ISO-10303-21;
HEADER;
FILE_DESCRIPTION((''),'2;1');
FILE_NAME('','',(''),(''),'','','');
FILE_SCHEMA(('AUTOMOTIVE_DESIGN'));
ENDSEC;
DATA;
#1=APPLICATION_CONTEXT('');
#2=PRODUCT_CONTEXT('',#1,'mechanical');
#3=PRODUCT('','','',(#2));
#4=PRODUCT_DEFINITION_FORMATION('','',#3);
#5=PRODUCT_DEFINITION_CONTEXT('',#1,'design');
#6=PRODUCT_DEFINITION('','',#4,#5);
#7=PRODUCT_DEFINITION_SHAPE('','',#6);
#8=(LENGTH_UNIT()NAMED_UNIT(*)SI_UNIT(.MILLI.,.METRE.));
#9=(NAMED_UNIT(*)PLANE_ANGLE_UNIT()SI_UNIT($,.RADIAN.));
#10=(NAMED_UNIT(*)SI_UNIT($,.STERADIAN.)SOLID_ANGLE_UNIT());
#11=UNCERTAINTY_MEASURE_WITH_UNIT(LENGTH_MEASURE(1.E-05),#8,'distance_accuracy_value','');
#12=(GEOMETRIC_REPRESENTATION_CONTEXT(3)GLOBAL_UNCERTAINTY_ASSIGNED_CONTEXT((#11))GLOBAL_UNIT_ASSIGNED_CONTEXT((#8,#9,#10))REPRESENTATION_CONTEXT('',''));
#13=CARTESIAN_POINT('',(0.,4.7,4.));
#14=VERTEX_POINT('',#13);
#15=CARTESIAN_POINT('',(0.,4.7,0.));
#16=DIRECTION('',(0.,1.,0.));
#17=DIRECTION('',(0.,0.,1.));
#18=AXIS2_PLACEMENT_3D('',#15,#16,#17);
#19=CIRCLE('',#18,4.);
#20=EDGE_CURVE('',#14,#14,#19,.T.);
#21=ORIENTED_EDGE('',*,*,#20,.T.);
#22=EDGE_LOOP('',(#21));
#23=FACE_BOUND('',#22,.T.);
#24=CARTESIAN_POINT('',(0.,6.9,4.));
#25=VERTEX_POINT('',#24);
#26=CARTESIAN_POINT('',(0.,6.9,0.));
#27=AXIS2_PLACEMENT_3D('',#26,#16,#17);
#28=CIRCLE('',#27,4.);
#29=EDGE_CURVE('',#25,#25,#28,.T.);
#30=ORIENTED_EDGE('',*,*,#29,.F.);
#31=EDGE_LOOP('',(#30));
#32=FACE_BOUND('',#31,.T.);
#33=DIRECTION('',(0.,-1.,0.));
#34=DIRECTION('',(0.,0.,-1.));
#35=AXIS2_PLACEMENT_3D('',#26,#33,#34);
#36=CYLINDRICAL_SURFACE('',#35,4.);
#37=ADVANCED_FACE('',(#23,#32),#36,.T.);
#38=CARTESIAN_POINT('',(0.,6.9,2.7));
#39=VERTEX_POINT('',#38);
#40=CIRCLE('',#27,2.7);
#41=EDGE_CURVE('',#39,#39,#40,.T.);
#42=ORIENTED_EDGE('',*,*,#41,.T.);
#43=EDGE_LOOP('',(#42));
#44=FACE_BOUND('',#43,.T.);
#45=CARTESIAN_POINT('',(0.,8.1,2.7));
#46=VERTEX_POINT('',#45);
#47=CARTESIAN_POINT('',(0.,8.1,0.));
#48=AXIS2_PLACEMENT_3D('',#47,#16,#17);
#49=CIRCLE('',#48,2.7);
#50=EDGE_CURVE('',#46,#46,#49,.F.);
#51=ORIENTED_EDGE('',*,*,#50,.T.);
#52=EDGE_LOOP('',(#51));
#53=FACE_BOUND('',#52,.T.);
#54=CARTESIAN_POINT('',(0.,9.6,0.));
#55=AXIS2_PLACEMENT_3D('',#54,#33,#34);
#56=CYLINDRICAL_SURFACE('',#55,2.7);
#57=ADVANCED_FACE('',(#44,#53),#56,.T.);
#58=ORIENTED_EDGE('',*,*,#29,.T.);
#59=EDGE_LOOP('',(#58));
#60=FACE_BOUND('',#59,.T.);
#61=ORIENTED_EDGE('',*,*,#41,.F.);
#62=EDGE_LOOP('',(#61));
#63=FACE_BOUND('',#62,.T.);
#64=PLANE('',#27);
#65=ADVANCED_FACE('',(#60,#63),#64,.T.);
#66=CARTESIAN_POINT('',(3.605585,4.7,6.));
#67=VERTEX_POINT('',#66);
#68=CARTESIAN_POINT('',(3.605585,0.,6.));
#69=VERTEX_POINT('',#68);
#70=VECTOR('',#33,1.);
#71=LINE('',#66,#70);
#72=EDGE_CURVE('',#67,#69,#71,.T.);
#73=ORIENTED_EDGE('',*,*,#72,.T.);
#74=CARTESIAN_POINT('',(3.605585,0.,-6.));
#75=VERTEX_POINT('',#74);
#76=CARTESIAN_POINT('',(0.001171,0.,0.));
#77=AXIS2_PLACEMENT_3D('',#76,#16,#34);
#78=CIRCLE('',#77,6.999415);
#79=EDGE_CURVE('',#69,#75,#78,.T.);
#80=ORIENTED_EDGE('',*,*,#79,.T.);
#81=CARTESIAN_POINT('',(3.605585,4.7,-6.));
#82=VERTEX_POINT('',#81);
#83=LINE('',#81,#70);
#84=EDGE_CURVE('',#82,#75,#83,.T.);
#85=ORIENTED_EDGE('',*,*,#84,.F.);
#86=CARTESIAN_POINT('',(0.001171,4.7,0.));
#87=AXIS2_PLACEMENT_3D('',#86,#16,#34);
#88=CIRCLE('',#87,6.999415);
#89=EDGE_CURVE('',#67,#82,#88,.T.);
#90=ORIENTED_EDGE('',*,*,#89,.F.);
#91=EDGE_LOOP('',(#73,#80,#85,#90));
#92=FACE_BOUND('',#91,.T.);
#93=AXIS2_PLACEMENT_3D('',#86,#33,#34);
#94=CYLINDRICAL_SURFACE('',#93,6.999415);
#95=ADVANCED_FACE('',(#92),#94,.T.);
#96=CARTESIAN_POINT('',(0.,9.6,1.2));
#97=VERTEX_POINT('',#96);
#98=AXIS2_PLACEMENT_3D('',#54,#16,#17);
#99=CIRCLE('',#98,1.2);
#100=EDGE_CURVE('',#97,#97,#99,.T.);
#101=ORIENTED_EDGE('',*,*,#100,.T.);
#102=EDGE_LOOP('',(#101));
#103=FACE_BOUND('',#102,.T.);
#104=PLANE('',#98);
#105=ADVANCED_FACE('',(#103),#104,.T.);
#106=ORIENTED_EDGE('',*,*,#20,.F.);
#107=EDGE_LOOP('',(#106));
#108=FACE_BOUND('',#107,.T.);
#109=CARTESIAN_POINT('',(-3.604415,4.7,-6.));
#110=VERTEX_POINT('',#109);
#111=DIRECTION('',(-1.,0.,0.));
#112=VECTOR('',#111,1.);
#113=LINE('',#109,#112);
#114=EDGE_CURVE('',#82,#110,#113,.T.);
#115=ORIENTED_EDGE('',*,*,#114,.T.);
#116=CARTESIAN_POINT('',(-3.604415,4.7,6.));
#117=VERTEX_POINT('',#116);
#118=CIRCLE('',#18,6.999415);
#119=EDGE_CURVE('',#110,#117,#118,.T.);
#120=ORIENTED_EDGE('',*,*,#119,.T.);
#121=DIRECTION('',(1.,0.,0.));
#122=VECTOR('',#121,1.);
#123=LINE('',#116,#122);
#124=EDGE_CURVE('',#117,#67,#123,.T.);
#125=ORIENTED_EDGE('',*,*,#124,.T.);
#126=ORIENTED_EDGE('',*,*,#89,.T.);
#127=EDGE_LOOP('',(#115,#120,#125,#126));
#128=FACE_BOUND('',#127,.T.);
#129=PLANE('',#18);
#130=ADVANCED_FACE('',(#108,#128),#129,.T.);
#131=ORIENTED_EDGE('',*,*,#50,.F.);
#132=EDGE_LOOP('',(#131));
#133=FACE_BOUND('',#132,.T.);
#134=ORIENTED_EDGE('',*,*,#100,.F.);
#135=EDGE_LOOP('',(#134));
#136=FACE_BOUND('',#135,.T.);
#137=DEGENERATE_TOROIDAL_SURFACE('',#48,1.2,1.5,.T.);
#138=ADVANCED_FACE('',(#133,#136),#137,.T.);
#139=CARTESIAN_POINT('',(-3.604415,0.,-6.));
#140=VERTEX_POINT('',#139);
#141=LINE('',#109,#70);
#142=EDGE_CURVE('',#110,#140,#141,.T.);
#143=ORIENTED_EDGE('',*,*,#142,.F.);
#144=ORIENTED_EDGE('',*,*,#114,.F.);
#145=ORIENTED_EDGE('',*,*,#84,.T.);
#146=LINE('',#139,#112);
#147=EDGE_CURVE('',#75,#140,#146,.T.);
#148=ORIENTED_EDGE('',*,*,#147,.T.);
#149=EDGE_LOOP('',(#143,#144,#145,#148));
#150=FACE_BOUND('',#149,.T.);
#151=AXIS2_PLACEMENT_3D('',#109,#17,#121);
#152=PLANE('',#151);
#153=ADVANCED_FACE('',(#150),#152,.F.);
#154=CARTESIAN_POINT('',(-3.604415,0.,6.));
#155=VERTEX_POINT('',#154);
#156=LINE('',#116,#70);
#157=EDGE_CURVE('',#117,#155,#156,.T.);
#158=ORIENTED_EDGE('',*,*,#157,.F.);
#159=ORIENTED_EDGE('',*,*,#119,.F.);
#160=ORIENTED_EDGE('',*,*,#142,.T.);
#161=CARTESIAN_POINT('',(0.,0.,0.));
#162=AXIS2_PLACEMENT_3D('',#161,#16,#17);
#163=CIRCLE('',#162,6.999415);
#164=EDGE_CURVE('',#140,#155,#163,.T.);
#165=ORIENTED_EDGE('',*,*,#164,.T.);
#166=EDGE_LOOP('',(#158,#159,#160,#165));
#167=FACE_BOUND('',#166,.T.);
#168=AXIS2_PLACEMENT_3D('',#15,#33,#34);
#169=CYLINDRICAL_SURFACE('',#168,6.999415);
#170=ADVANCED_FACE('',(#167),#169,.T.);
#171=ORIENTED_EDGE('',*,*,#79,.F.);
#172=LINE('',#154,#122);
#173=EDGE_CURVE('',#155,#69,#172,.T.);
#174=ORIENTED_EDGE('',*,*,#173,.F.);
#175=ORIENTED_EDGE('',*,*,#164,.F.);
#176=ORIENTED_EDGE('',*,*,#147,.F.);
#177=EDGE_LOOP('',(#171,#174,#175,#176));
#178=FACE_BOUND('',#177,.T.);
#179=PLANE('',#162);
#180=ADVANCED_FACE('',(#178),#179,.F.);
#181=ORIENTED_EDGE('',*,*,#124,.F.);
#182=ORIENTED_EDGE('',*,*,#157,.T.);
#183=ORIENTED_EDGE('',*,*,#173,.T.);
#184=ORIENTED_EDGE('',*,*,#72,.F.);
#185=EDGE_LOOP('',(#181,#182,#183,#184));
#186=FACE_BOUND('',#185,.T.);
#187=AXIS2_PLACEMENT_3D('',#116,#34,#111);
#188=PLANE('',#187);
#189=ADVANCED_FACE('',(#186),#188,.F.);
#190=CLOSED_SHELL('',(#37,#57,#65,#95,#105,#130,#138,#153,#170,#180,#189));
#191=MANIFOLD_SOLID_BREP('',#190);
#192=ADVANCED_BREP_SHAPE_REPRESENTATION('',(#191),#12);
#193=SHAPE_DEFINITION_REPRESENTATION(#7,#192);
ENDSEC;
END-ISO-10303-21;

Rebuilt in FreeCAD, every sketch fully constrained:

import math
import FreeCAD as App
import Part
import Sketcher

V = App.Vector


def edges_at(feature, points):
    """Names of the edges that pass closest to the given points."""
    edges = feature.Shape.Edges
    near = lambda p: min(range(len(edges)), key=lambda i: edges[i].distToShape(Part.Vertex(*p))[0])
    return sorted({f"Edge{near(p) + 1}" for p in points})

doc = App.newDocument("Part")
body = doc.addObject("PartDesign::Body", "Body")

# Sketch on XZ plane
sketch1 = body.newObject("Sketcher::SketchObject", "Sketch")
sketch1.AttachmentSupport = (doc.getObject("XZ_Plane"), [""])
sketch1.MapMode = "FlatFace"
sketch1.addGeometry([
    Part.LineSegment(V(4, -6, 0), V(-4, -6, 0)),
    Part.ArcOfCircle(Part.Circle(V(0, 0, 0), V(0, 0, 1), 7), math.radians(121), math.radians(239)),
    Part.LineSegment(V(-4, 6, 0), V(4, 6, 0)),
    Part.ArcOfCircle(Part.Circle(V(0, 0, 0), V(0, 0, 1), 7), math.radians(-59), math.radians(59)),
], False)
sketch1.addConstraint([
    Sketcher.Constraint("Coincident", 0, 2, 1, 2),
    Sketcher.Constraint("Coincident", 1, 1, 2, 1),
    Sketcher.Constraint("Coincident", 2, 2, 3, 2),
    Sketcher.Constraint("Coincident", 3, 1, 0, 1),
    Sketcher.Constraint("Horizontal", 0),
    Sketcher.Constraint("Horizontal", 2),
    Sketcher.Constraint("Coincident", 1, 3, -1, 1),
    Sketcher.Constraint("Equal", 1, 3),
    Sketcher.Constraint("Symmetric", 2, 2, 3, 1, -1),
    Sketcher.Constraint("DistanceY", 0, 2, -1, 1, 6.0),
    Sketcher.Constraint("DistanceX", 0, 2, 0, 1, 7.21),
    Sketcher.Constraint("Radius", 1, 6.999415),
])
pad1 = body.newObject("PartDesign::Pad", "Pad")
pad1.Profile = sketch1
pad1.Length = 4.7
pad1.Reversed = True

# Sketch on XZ plane
sketch2 = body.newObject("Sketcher::SketchObject", "Sketch001")
sketch2.AttachmentSupport = (doc.getObject("XZ_Plane"), [""])
sketch2.MapMode = "FlatFace"
sketch2.AttachmentOffset = App.Placement(V(0, 0, -4.7), App.Rotation())
sketch2.addGeometry(Part.Circle(V(0, 0, 0), V(0, 0, 1), 4), False)
sketch2.addConstraint([
    Sketcher.Constraint("Coincident", 0, 3, -1, 1),
    Sketcher.Constraint("Diameter", 0, 8.0),
])
pad2 = body.newObject("PartDesign::Pad", "Pad001")
pad2.Profile = sketch2
pad2.Length = 2.2
pad2.Reversed = True

# Sketch on XZ plane
sketch3 = body.newObject("Sketcher::SketchObject", "Sketch002")
sketch3.AttachmentSupport = (doc.getObject("XZ_Plane"), [""])
sketch3.MapMode = "FlatFace"
sketch3.AttachmentOffset = App.Placement(V(0, 0, -6.9), App.Rotation())
sketch3.addGeometry(Part.Circle(V(0, 0, 0), V(0, 0, 1), 2.7), False)
sketch3.addConstraint([
    Sketcher.Constraint("Coincident", 0, 3, -1, 1),
    Sketcher.Constraint("Diameter", 0, 5.4),
])
pad3 = body.newObject("PartDesign::Pad", "Pad002")
pad3.Profile = sketch3
pad3.Length = 2.7
pad3.Reversed = True
doc.recompute()

fillet = body.newObject("PartDesign::Fillet", "Fillet")
fillet.Base = (pad3, edges_at(pad3, [(0, 9.6, -2.7)]))
fillet.Radius = 1.5

doc.recompute()
